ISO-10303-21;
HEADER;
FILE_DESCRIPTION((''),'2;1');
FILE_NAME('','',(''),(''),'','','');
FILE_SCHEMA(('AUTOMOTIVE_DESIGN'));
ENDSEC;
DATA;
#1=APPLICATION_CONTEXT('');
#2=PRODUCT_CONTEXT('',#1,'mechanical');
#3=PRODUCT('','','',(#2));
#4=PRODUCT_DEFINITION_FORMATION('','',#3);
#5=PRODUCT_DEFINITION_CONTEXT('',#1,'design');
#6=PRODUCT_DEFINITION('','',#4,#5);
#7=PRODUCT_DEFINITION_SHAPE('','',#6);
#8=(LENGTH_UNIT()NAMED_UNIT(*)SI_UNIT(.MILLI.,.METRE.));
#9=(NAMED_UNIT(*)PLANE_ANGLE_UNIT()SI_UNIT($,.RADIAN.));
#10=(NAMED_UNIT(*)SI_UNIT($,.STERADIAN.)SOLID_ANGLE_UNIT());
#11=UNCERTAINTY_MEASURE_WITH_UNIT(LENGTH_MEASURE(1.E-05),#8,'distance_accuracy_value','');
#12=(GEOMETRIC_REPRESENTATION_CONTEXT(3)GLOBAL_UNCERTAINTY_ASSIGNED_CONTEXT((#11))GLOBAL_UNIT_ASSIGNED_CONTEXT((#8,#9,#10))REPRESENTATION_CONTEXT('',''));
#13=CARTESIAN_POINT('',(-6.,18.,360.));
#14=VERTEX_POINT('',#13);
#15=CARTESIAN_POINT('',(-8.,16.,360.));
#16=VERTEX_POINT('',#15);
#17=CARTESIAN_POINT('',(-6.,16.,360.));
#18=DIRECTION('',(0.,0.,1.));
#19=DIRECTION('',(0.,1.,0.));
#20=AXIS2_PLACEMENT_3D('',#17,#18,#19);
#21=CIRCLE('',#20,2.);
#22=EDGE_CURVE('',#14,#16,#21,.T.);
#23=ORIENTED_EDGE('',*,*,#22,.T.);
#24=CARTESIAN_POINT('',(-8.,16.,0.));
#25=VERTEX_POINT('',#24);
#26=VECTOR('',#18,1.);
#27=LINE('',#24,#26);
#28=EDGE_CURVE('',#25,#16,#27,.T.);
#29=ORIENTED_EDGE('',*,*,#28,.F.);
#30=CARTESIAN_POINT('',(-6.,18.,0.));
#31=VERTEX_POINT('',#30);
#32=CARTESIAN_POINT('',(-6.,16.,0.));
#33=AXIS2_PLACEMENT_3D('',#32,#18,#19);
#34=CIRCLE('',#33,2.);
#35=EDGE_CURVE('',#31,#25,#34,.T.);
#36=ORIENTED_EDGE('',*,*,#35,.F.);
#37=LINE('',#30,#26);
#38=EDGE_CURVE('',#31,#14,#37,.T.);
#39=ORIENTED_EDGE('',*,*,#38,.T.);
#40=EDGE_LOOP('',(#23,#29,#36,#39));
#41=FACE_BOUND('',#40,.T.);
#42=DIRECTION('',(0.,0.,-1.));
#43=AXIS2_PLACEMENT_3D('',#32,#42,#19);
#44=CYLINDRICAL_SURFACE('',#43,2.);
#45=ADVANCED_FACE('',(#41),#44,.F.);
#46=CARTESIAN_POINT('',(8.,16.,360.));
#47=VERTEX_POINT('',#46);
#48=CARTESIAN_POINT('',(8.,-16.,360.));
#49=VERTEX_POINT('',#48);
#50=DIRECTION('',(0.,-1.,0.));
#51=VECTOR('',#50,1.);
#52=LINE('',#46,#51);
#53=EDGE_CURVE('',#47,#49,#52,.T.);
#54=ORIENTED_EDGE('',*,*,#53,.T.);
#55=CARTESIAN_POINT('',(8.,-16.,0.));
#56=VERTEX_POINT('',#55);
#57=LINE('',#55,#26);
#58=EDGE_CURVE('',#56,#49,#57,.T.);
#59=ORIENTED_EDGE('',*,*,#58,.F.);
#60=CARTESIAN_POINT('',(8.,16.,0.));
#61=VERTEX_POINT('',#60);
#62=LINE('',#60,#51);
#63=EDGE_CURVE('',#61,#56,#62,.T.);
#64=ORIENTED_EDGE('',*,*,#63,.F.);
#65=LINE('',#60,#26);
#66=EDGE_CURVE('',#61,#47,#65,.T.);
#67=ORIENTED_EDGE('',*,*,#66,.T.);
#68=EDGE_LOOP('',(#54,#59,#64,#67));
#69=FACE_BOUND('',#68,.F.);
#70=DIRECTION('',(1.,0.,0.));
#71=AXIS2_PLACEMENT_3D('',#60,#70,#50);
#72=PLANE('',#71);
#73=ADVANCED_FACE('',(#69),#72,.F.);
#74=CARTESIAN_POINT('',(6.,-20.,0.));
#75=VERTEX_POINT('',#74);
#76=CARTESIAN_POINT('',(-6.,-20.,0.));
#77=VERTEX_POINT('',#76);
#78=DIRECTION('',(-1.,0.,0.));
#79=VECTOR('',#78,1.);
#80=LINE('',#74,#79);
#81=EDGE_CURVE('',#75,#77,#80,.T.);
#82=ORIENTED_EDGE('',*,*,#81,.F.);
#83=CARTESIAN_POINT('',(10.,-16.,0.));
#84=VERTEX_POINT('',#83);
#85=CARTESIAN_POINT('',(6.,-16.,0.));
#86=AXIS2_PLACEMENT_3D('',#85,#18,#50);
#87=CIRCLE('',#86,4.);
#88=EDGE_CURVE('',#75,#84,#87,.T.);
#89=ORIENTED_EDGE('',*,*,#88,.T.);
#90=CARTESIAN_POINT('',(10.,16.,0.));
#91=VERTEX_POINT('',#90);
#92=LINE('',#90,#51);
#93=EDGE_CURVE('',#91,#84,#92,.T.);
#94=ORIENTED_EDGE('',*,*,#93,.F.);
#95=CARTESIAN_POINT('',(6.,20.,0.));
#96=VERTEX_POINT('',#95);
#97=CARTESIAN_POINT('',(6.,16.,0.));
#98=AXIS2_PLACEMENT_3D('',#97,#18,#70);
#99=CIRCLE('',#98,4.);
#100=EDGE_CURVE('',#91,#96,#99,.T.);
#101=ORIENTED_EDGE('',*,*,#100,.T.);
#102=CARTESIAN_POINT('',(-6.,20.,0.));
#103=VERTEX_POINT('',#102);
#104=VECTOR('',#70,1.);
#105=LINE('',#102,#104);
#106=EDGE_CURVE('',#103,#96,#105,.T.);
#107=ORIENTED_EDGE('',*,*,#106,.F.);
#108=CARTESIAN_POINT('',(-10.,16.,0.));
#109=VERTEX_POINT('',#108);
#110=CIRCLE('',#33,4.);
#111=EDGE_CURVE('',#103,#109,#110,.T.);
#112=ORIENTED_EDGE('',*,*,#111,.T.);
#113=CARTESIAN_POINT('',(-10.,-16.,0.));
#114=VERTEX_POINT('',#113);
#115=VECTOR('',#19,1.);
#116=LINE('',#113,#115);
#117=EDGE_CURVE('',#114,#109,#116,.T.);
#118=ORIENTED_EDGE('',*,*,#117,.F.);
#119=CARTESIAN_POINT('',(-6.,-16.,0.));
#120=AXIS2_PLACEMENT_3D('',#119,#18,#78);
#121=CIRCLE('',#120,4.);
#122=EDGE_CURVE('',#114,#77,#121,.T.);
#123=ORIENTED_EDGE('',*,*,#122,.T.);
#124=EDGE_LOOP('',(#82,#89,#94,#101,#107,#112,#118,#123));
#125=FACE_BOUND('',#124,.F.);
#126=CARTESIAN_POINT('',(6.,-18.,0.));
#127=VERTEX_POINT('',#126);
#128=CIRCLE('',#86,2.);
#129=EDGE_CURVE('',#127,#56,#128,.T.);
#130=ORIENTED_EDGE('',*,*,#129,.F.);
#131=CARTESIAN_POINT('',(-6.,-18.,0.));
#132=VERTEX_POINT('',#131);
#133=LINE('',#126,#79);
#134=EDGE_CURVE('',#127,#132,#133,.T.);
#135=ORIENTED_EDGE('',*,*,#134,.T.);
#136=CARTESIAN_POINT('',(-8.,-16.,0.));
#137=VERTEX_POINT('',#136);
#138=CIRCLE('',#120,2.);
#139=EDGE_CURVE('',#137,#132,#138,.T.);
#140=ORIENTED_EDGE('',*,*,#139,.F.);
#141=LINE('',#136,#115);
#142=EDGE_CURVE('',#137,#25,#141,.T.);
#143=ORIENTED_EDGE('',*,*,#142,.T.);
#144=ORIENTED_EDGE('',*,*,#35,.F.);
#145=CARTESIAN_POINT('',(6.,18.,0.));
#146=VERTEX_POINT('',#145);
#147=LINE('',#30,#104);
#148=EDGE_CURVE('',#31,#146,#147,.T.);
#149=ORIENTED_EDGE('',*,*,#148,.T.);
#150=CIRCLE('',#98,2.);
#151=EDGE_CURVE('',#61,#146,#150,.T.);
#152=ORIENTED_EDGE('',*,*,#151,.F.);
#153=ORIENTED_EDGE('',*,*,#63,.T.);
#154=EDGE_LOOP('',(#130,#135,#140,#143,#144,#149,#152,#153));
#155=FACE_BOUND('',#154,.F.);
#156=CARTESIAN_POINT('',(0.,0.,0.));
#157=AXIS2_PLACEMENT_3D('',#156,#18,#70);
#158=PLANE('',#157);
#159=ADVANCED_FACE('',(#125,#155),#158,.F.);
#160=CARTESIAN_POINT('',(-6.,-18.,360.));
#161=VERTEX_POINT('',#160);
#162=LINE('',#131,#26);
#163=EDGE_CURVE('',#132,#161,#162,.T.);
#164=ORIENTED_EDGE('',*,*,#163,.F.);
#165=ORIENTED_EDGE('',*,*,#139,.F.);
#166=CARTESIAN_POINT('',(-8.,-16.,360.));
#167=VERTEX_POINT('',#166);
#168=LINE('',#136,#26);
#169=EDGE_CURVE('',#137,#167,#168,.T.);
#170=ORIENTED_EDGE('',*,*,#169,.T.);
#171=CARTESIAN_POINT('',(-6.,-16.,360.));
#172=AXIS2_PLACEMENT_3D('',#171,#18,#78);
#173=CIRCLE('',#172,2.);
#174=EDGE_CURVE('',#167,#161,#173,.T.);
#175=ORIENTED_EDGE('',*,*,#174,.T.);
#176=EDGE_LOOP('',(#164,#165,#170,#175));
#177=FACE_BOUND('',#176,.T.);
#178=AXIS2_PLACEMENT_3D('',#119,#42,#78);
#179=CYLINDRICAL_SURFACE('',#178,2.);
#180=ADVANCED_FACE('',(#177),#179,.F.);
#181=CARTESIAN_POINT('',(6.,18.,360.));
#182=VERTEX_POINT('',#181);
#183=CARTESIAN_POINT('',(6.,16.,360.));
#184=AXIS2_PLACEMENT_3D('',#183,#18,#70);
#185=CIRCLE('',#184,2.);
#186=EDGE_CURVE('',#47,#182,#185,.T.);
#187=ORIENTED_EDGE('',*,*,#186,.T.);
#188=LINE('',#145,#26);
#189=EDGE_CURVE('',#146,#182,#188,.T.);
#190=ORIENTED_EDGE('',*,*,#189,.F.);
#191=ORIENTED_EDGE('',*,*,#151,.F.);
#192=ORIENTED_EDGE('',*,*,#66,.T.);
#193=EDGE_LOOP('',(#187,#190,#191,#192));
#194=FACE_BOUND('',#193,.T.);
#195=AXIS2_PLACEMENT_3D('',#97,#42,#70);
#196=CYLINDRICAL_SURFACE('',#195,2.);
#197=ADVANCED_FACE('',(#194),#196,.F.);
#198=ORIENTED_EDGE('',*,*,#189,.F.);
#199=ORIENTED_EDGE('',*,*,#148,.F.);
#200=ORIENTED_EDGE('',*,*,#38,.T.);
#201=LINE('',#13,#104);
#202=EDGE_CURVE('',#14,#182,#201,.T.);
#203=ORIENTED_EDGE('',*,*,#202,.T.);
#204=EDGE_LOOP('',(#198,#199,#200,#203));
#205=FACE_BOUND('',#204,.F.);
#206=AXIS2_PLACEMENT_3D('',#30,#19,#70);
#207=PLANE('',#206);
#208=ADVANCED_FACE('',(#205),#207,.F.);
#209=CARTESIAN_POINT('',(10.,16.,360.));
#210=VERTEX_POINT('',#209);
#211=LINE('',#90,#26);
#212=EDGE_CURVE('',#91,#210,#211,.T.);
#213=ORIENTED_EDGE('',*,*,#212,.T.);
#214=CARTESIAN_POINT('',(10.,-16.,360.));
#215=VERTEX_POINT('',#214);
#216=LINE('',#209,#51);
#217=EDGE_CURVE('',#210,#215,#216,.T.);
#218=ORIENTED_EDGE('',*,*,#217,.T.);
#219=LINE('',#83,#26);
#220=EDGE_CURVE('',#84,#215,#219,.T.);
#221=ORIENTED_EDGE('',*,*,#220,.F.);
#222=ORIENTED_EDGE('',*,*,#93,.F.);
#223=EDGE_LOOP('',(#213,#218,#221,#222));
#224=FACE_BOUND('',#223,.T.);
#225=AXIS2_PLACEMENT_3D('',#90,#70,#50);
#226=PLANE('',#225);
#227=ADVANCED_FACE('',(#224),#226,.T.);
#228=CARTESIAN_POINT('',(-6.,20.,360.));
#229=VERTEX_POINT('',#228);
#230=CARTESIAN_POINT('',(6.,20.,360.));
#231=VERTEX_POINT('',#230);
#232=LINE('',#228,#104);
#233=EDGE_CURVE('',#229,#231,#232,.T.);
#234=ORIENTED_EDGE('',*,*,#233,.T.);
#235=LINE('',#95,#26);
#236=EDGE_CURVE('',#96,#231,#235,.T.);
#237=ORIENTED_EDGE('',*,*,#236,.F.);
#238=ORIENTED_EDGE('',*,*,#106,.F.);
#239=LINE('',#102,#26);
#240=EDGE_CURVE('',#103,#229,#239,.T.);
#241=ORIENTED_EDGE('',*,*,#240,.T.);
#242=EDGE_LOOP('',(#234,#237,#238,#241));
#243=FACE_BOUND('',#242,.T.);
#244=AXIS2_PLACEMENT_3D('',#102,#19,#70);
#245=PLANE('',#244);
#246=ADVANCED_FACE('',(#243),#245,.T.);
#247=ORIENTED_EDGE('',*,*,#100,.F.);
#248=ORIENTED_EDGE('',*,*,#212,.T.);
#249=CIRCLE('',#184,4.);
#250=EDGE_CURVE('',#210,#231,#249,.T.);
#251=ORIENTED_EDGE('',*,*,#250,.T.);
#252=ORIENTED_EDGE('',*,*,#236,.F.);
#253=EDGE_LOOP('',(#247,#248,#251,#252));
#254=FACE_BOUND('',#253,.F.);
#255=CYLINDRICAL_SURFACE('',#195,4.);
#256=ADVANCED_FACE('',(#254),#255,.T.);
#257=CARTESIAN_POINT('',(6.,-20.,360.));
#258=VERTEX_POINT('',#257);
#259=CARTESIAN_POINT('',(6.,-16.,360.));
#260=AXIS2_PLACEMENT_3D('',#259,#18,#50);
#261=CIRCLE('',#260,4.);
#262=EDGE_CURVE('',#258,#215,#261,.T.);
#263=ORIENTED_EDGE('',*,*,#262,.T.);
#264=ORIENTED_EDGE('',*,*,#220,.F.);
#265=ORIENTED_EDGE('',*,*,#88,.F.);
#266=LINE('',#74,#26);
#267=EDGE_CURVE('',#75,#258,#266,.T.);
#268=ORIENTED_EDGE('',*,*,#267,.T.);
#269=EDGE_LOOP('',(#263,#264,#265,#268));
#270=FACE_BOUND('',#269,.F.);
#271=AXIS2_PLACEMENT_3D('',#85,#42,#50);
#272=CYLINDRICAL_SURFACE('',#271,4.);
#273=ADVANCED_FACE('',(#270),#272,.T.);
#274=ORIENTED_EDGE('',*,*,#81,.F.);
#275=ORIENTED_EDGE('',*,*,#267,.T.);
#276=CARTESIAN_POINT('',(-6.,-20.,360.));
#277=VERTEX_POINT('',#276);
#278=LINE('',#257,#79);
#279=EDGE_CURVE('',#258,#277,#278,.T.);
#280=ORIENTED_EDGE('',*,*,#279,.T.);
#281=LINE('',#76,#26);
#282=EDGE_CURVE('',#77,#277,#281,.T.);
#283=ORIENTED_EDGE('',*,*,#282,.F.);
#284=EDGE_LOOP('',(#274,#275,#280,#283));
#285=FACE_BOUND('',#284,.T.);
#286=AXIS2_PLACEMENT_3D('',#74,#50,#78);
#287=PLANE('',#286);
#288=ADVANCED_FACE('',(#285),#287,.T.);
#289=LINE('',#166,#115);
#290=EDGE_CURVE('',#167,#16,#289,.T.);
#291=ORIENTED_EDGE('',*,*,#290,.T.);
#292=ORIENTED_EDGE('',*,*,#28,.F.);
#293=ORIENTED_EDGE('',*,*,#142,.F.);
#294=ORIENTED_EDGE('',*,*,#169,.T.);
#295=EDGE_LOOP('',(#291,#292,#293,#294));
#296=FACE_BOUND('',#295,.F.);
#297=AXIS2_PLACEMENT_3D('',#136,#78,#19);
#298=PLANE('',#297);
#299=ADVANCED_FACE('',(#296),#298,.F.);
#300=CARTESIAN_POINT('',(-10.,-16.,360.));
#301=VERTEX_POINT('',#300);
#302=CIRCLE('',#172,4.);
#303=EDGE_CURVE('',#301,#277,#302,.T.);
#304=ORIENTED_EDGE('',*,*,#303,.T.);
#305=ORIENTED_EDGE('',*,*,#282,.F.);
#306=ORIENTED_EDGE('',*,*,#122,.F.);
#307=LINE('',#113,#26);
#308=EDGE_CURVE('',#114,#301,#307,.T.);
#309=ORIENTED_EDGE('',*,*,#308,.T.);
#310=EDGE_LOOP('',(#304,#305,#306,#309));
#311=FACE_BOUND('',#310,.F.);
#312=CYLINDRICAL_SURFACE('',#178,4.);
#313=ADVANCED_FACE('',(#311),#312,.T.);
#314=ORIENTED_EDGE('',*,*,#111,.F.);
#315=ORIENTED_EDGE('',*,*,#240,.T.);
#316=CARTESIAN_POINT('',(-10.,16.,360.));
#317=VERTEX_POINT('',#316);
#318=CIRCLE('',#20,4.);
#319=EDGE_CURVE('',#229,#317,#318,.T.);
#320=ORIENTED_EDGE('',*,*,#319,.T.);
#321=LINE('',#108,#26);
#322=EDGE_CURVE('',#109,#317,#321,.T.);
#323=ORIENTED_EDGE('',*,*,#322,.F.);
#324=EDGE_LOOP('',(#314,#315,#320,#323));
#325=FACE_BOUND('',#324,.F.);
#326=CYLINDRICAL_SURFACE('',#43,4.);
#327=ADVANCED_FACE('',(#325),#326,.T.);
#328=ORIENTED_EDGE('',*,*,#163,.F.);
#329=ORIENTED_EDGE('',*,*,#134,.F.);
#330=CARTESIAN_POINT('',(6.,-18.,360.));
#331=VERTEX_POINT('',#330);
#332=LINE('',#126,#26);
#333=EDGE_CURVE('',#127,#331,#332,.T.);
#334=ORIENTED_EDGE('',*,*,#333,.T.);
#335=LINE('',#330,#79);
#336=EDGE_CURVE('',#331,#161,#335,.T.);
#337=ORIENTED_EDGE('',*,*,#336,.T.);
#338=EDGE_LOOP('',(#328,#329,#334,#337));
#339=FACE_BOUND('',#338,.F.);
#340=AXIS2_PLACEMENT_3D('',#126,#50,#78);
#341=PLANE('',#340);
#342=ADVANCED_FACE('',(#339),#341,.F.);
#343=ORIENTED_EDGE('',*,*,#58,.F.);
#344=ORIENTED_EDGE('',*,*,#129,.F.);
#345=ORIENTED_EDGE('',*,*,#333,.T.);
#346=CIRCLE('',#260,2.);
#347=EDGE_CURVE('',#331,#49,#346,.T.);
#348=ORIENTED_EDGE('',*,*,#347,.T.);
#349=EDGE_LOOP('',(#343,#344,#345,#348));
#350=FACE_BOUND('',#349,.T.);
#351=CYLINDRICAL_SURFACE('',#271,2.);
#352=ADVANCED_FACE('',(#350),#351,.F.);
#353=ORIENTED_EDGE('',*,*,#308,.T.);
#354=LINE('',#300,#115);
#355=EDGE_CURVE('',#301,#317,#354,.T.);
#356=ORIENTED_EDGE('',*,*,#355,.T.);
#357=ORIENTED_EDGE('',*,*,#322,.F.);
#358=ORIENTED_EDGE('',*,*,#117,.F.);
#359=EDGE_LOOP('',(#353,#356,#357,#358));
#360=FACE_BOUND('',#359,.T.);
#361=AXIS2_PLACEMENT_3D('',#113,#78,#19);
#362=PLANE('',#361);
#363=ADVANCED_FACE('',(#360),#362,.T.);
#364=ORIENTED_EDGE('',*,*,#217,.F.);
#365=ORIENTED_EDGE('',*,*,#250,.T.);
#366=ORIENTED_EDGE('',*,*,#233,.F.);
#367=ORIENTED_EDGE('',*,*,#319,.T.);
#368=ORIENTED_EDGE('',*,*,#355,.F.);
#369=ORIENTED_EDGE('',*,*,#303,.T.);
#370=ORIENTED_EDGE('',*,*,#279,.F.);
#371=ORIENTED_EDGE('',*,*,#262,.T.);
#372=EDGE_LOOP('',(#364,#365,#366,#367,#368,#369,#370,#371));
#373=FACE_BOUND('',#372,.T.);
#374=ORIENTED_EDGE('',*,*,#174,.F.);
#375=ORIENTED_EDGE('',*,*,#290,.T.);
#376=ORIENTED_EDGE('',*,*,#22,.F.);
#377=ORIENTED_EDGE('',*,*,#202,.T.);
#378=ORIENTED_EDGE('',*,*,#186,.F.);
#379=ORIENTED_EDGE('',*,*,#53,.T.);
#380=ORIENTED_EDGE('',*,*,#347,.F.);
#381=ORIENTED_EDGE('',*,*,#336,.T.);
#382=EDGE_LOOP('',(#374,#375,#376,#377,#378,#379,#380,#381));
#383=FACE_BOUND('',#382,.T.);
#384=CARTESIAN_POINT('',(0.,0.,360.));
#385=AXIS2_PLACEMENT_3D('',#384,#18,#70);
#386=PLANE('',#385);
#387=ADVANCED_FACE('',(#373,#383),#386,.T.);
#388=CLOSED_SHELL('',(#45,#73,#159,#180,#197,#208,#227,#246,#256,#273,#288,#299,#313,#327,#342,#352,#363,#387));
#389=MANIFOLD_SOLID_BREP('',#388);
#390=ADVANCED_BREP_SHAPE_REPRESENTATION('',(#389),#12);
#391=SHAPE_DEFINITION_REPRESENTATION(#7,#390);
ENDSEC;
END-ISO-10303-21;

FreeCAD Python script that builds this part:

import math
import FreeCAD as App
import Part
import Sketcher

doc = App.newDocument("Part")
params = doc.addObject("Spreadsheet::Sheet", "Params")
for row, (alias, value) in enumerate([
    ("sketch1_radius", "4 mm"),
    ("sketch1_radius2", "2 mm"),
    ("pad1_length", "360 mm"),
], start=1):
    params.set(f"A{row}", alias)
    params.set(f"B{row}", "=" + value)
    params.setAlias(f"B{row}", alias)

body = doc.addObject("PartDesign::Body", "Body")

# Sketch on XY plane
sketch1 = body.newObject("Sketcher::SketchObject", "Sketch")
sketch1.AttachmentSupport = (doc.getObject("XY_Plane"), [""])
sketch1.MapMode = "FlatFace"
sketch1.addGeometry(Part.LineSegment(App.Vector(-10, 16, 0), App.Vector(-10, -16, 0)), False)
sketch1.addGeometry(Part.ArcOfCircle(Part.Circle(App.Vector(-6, -16, 0), App.Vector(0, 0, 1), 4), math.radians(180), math.radians(270)), False)
sketch1.addGeometry(Part.LineSegment(App.Vector(-6, -20, 0), App.Vector(6, -20, 0)), False)
sketch1.addGeometry(Part.ArcOfCircle(Part.Circle(App.Vector(6, -16, 0), App.Vector(0, 0, 1), 4), math.radians(-90), math.radians(0)), False)
sketch1.addGeometry(Part.LineSegment(App.Vector(10, -16, 0), App.Vector(10, 16, 0)), False)
sketch1.addGeometry(Part.ArcOfCircle(Part.Circle(App.Vector(6, 16, 0), App.Vector(0, 0, 1), 4), math.radians(0), math.radians(90)), False)
sketch1.addGeometry(Part.LineSegment(App.Vector(6, 20, 0), App.Vector(-6, 20, 0)), False)
sketch1.addGeometry(Part.ArcOfCircle(Part.Circle(App.Vector(-6, 16, 0), App.Vector(0, 0, 1), 4), math.radians(90), math.radians(180)), False)
sketch1.addGeometry(Part.ArcOfCircle(Part.Circle(App.Vector(-6, 16, 0), App.Vector(0, 0, 1), 2), math.radians(90), math.radians(180)), False)
sketch1.addGeometry(Part.LineSegment(App.Vector(-6, 18, 0), App.Vector(6, 18, 0)), False)
sketch1.addGeometry(Part.ArcOfCircle(Part.Circle(App.Vector(6, 16, 0), App.Vector(0, 0, 1), 2), math.radians(0), math.radians(90)), False)
sketch1.addGeometry(Part.LineSegment(App.Vector(8, 16, 0), App.Vector(8, -16, 0)), False)
sketch1.addGeometry(Part.ArcOfCircle(Part.Circle(App.Vector(6, -16, 0), App.Vector(0, 0, 1), 2), math.radians(-90), math.radians(0)), False)
sketch1.addGeometry(Part.LineSegment(App.Vector(6, -18, 0), App.Vector(-6, -18, 0)), False)
sketch1.addGeometry(Part.ArcOfCircle(Part.Circle(App.Vector(-6, -16, 0), App.Vector(0, 0, 1), 2), math.radians(180), math.radians(270)), False)
sketch1.addGeometry(Part.LineSegment(App.Vector(-8, -16, 0), App.Vector(-8, 16, 0)), False)
sketch1.addConstraint(Sketcher.Constraint("Tangent", 0, 2, 1, 1))
sketch1.addConstraint(Sketcher.Constraint("Tangent", 1, 2, 2, 1))
sketch1.addConstraint(Sketcher.Constraint("Tangent", 2, 2, 3, 1))
sketch1.addConstraint(Sketcher.Constraint("Tangent", 3, 2, 4, 1))
sketch1.addConstraint(Sketcher.Constraint("Tangent", 4, 2, 5, 1))
sketch1.addConstraint(Sketcher.Constraint("Tangent", 5, 2, 6, 1))
sketch1.addConstraint(Sketcher.Constraint("Tangent", 6, 2, 7, 1))
sketch1.addConstraint(Sketcher.Constraint("Tangent", 7, 2, 0, 1))
sketch1.addConstraint(Sketcher.Constraint("Tangent", 8, 1, 9, 1))
sketch1.addConstraint(Sketcher.Constraint("Tangent", 9, 2, 10, 2))
sketch1.addConstraint(Sketcher.Constraint("Tangent", 10, 1, 11, 1))
sketch1.addConstraint(Sketcher.Constraint("Tangent", 11, 2, 12, 2))
sketch1.addConstraint(Sketcher.Constraint("Tangent", 12, 1, 13, 1))
sketch1.addConstraint(Sketcher.Constraint("Tangent", 13, 2, 14, 2))
sketch1.addConstraint(Sketcher.Constraint("Tangent", 14, 1, 15, 1))
sketch1.addConstraint(Sketcher.Constraint("Tangent", 15, 2, 8, 2))
sketch1.addConstraint(Sketcher.Constraint("Vertical", 0))
sketch1.addConstraint(Sketcher.Constraint("Horizontal", 2))
sketch1.addConstraint(Sketcher.Constraint("Vertical", 4))
sketch1.addConstraint(Sketcher.Constraint("Horizontal", 6))
sketch1.addConstraint(Sketcher.Constraint("Horizontal", 9))
sketch1.addConstraint(Sketcher.Constraint("Vertical", 11))
sketch1.addConstraint(Sketcher.Constraint("Horizontal", 13))
sketch1.addConstraint(Sketcher.Constraint("Vertical", 15))
sketch1.addConstraint(Sketcher.Constraint("Coincident", 8, 3, 7, 3))
sketch1.addConstraint(Sketcher.Constraint("Coincident", 10, 3, 5, 3))
sketch1.addConstraint(Sketcher.Constraint("Coincident", 12, 3, 3, 3))
sketch1.addConstraint(Sketcher.Constraint("Equal", 1, 3))
sketch1.addConstraint(Sketcher.Constraint("Equal", 3, 5))
sketch1.addConstraint(Sketcher.Constraint("Equal", 5, 7))
sketch1.addConstraint(Sketcher.Constraint("Equal", 12, 14))
sketch1.addConstraint(Sketcher.Constraint("Symmetric", 1, 3, 5, 3, -1, 1))
sketch1.addConstraint(Sketcher.Constraint("Radius", 1, 4.0))
sketch1.addConstraint(Sketcher.Constraint("Radius", 8, 2.0))
sketch1.addConstraint(Sketcher.Constraint("DistanceX", 0, 2, -1, 1, 10.0))
sketch1.addConstraint(Sketcher.Constraint("DistanceY", 1, 2, -1, 1, 20.0))
sketch1.setExpression("Constraints[32]", "Params.sketch1_radius")
sketch1.setExpression("Constraints[33]", "Params.sketch1_radius2")
pad1 = body.newObject("PartDesign::Pad", "Pad")
pad1.Profile = sketch1
pad1.setExpression("Length", "Params.pad1_length")

doc.recompute()
